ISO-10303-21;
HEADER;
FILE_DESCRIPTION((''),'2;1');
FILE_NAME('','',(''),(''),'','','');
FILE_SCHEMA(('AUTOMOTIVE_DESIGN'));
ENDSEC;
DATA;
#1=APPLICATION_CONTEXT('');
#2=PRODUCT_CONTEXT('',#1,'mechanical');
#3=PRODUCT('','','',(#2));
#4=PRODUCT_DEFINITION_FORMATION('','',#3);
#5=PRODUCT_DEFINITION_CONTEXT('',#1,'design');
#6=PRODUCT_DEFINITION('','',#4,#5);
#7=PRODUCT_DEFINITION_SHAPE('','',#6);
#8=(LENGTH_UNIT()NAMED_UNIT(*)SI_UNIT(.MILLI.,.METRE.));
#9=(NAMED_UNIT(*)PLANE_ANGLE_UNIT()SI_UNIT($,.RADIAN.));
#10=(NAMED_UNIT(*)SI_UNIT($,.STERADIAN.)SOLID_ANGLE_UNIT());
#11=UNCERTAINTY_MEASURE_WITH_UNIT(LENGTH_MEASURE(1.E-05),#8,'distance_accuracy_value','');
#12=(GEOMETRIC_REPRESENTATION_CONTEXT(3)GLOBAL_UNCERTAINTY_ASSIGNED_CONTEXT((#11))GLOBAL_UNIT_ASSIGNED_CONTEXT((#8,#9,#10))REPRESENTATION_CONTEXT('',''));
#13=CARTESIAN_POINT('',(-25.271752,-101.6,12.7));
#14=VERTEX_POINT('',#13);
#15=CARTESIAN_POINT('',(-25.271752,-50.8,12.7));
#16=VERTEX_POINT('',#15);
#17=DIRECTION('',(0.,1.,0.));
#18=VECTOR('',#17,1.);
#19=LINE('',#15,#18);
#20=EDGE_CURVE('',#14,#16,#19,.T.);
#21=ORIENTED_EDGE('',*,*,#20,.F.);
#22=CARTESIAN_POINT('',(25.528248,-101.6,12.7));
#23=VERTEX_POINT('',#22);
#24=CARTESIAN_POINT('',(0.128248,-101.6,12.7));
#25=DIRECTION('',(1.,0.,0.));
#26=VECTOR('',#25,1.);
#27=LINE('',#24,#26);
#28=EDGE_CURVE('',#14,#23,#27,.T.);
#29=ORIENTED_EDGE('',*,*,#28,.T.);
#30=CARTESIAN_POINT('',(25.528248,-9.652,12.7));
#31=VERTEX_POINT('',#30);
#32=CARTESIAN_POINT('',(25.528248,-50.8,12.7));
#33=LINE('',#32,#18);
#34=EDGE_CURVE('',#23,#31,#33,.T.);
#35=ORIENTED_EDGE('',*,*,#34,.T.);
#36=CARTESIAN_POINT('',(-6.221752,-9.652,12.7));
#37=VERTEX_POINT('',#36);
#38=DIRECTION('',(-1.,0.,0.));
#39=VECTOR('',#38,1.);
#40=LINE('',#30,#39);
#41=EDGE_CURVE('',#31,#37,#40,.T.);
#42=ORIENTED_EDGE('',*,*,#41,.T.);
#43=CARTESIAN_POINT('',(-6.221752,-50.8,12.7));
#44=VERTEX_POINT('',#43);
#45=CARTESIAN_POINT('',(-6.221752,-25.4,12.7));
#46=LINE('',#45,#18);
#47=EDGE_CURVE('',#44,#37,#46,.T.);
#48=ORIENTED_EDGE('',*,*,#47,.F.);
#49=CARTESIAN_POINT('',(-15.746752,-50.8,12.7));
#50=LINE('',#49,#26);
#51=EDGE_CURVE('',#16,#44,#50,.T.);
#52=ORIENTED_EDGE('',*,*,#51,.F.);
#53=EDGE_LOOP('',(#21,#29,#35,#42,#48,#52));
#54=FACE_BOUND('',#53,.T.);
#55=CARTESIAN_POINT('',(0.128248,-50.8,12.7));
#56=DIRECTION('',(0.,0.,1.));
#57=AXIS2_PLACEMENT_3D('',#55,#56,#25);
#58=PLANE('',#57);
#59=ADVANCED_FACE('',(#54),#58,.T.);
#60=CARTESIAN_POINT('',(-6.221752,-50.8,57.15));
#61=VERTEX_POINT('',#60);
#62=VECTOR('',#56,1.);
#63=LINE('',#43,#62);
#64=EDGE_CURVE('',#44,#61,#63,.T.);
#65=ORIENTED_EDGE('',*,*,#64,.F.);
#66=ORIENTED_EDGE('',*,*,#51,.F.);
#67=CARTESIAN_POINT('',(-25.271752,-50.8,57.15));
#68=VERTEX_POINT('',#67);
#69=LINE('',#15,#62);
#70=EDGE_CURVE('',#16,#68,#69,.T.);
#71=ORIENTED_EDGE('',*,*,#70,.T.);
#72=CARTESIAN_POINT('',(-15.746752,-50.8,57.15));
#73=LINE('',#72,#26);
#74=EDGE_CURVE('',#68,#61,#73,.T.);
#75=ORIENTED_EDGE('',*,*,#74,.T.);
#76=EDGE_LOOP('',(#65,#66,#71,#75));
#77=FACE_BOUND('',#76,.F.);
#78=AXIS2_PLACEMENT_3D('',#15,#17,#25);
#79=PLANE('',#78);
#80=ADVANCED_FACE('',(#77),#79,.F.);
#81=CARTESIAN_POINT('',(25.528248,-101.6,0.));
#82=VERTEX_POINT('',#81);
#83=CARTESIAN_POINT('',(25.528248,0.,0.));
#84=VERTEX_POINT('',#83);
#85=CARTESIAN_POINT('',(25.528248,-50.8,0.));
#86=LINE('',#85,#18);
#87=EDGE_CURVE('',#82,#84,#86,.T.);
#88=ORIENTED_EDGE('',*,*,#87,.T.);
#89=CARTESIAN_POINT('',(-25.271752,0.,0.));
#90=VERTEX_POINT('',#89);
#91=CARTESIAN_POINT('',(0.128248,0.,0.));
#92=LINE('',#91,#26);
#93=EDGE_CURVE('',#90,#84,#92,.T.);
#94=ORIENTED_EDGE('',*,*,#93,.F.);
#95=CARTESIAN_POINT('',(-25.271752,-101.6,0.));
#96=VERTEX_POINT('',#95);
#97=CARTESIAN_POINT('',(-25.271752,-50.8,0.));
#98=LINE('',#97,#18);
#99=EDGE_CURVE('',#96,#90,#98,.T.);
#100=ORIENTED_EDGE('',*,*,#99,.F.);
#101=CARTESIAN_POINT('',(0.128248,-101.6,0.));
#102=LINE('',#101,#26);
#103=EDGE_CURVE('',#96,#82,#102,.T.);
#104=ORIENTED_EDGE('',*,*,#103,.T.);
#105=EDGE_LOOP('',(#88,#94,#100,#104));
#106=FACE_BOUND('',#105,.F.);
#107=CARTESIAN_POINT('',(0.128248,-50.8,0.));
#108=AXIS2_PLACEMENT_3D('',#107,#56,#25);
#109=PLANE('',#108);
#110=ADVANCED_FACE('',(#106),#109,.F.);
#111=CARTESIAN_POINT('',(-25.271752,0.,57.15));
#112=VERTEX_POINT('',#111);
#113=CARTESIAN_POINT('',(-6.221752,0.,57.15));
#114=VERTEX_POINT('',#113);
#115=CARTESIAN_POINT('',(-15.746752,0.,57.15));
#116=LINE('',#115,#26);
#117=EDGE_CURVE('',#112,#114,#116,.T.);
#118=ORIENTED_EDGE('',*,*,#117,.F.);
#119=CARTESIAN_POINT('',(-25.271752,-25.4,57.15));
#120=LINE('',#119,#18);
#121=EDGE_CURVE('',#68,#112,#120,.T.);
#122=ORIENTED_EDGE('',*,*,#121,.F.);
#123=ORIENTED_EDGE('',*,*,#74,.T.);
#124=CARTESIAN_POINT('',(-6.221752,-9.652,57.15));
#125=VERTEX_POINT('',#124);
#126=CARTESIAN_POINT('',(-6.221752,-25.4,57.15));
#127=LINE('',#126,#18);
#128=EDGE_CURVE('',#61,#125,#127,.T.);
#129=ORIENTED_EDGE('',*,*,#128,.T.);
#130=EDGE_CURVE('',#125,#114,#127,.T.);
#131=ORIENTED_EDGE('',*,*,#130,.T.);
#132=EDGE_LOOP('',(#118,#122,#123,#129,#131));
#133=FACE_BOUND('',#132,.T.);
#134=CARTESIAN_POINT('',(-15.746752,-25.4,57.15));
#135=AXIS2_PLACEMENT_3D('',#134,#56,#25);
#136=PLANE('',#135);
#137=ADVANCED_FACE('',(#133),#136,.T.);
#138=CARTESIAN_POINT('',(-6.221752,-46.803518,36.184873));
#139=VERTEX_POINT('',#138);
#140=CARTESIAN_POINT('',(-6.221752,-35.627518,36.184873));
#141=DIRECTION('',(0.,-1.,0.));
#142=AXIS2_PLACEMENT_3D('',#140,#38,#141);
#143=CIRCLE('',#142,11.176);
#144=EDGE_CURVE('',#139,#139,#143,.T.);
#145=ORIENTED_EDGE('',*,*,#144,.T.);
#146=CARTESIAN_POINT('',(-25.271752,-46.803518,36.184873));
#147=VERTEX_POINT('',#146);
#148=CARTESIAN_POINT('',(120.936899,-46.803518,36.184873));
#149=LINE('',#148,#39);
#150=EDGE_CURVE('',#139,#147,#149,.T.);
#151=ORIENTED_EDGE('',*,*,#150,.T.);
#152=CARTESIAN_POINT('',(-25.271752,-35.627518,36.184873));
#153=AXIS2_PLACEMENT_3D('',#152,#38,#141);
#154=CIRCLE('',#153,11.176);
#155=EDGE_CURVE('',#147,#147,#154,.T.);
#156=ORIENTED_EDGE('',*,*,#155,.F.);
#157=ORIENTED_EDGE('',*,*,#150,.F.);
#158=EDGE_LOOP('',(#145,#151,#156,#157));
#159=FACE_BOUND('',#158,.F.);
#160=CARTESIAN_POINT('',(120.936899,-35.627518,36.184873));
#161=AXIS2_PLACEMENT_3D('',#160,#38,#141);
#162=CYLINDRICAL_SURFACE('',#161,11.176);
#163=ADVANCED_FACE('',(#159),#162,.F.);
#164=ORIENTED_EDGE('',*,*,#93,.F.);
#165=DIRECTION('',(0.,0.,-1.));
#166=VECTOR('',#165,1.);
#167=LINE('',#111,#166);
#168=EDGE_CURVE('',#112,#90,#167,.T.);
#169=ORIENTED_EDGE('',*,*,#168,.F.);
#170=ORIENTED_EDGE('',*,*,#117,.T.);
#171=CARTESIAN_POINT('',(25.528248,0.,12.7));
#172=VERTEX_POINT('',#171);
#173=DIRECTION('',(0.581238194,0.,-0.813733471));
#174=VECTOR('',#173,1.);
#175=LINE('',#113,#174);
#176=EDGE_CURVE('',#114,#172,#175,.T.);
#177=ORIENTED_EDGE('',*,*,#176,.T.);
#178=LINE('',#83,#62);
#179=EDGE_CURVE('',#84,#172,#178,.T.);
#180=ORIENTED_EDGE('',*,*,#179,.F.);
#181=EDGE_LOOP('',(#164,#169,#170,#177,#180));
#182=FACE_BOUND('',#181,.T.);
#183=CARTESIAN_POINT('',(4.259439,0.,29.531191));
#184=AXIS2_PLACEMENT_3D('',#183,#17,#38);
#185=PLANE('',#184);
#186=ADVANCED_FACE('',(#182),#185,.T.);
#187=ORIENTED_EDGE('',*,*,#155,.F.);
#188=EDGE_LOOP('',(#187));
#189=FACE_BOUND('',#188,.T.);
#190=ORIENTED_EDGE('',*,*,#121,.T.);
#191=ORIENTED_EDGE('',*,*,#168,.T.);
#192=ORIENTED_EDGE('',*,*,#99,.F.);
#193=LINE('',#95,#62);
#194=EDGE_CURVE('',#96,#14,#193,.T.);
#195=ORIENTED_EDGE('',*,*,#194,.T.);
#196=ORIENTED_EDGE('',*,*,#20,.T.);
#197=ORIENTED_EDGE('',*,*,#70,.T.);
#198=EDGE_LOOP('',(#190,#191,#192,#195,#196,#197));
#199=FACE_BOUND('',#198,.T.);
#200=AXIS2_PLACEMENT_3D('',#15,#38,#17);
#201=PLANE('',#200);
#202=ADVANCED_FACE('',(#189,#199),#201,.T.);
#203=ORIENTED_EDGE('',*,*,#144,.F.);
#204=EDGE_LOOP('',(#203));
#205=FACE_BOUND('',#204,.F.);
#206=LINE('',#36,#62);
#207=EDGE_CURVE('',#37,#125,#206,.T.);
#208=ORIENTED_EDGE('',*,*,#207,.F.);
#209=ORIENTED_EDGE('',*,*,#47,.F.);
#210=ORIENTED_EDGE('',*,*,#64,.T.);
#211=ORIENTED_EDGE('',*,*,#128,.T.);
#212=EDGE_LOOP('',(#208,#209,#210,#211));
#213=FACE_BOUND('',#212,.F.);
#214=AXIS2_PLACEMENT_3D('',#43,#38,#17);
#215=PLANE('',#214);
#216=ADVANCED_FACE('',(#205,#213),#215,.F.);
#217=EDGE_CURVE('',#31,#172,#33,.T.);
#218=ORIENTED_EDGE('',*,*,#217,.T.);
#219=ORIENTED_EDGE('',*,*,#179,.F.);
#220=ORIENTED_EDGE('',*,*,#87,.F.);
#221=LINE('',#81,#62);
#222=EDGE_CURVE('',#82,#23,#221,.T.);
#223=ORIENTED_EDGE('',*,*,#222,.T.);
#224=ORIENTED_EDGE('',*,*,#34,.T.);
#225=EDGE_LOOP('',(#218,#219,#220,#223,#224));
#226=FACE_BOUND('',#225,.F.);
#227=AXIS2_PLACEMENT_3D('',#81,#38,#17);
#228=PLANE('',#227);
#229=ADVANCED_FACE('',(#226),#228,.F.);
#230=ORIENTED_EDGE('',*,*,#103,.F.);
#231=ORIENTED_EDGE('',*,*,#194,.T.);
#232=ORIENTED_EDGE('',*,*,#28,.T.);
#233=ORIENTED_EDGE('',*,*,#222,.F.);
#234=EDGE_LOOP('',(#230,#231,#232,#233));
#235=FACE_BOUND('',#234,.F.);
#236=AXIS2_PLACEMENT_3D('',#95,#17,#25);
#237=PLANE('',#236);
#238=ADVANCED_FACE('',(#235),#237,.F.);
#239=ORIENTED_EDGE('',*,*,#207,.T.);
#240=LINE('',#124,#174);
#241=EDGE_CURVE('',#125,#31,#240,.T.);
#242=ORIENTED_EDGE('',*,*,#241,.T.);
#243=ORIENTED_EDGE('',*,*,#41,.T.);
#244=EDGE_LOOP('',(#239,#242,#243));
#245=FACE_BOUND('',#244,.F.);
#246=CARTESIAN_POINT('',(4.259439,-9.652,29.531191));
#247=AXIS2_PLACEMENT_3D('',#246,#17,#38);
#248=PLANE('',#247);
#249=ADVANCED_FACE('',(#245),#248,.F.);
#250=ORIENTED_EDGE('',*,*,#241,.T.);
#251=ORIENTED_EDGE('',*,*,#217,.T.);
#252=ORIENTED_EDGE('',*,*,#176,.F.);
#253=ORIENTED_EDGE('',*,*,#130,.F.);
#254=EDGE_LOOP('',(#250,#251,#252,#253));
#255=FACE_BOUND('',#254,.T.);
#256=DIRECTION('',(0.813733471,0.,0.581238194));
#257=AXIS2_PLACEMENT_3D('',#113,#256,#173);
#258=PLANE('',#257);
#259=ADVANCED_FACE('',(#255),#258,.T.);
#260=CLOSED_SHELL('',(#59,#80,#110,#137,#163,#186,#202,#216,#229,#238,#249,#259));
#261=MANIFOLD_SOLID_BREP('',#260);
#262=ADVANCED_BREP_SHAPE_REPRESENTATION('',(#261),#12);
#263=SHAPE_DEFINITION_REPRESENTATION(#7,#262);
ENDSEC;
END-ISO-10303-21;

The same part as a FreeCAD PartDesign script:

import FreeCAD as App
import Part
import Sketcher

V = App.Vector
Q = App.Units.Quantity

doc = App.newDocument("Part")
body = doc.addObject("PartDesign::Body", "Body")

sketch1 = body.newObject("Sketcher::SketchObject", "Sketch")
sketch1.AttachmentSupport = (doc.getObject("XY_Plane"), [""])
sketch1.MapMode = "FlatFace"
sketch1.addGeometry([
    Part.LineSegment(V(-25, 0, 0), V(-25, -102, 0)),
    Part.LineSegment(V(-25, -102, 0), V(26, -102, 0)),
    Part.LineSegment(V(26, -102, 0), V(26, 0, 0)),
    Part.LineSegment(V(26, 0, 0), V(-25, 0, 0)),
], False)
sketch1.addConstraint([
    Sketcher.Constraint("Coincident", 0, 2, 1, 1),
    Sketcher.Constraint("Coincident", 1, 2, 2, 1),
    Sketcher.Constraint("Coincident", 2, 2, 3, 1),
    Sketcher.Constraint("Coincident", 3, 2, 0, 1),
    Sketcher.Constraint("Vertical", 0),
    Sketcher.Constraint("Horizontal", 1),
    Sketcher.Constraint("Vertical", 2),
    Sketcher.Constraint("Horizontal", 3),
    Sketcher.Constraint("PointOnObject", 2, 2, -1),
    Sketcher.Constraint("DistanceX", 1, 1, 1, 2, Q("2 in")),
    Sketcher.Constraint("DistanceY", 0, 2, 0, 1, Q("4 in")),
    Sketcher.Constraint("DistanceX", 0, 2, -1, 1, Q("25.271752 mm")),
])
pad1 = body.newObject("PartDesign::Pad", "Pad")
pad1.Profile = sketch1
pad1.Length = Q("0.5 in")

sketch2 = body.newObject("Sketcher::SketchObject", "Sketch001")
sketch2.AttachmentSupport = (doc.getObject("XY_Plane"), [""])
sketch2.MapMode = "FlatFace"
sketch2.AttachmentOffset = App.Placement(V(0, 0, 0.5 * 25.4), App.Rotation())
sketch2.addGeometry([
    Part.LineSegment(V(-25, 0, 0), V(-25, -51, 0)),
    Part.LineSegment(V(-25, -51, 0), V(-6, -51, 0)),
    Part.LineSegment(V(-6, -51, 0), V(-6, 0, 0)),
    Part.LineSegment(V(-6, 0, 0), V(-25, 0, 0)),
], False)
sketch2.addConstraint([
    Sketcher.Constraint("Coincident", 0, 2, 1, 1),
    Sketcher.Constraint("Coincident", 1, 2, 2, 1),
    Sketcher.Constraint("Coincident", 2, 2, 3, 1),
    Sketcher.Constraint("Coincident", 3, 2, 0, 1),
    Sketcher.Constraint("Vertical", 0),
    Sketcher.Constraint("Horizontal", 1),
    Sketcher.Constraint("Vertical", 2),
    Sketcher.Constraint("Horizontal", 3),
    Sketcher.Constraint("PointOnObject", 2, 2, -1),
    Sketcher.Constraint("DistanceY", 0, 2, 0, 1, Q("2 in")),
    Sketcher.Constraint("DistanceX", 1, 1, 1, 2, Q("0.75 in")),
    Sketcher.Constraint("DistanceX", 0, 2, -1, 1, Q("25.271752 mm")),
])
pad2 = body.newObject("PartDesign::Pad", "Pad001")
pad2.Profile = sketch2
pad2.Length = Q("1.75 in")

sketch3 = body.newObject("Sketcher::SketchObject", "Sketch002")
sketch3.AttachmentSupport = (doc.getObject("XZ_Plane"), [""])
sketch3.MapMode = "FlatFace"
sketch3.addGeometry([
    Part.LineSegment(V(-6, 13, 0), V(-6, 57, 0)),
    Part.LineSegment(V(-6, 57, 0), V(26, 13, 0)),
    Part.LineSegment(V(26, 13, 0), V(-6, 13, 0)),
], False)
sketch3.addConstraint([
    Sketcher.Constraint("Coincident", 0, 2, 1, 1),
    Sketcher.Constraint("Coincident", 1, 2, 2, 1),
    Sketcher.Constraint("Coincident", 2, 2, 0, 1),
    Sketcher.Constraint("Vertical", 0),
    Sketcher.Constraint("Horizontal", 2),
    Sketcher.Constraint("DistanceX", 2, 2, 2, 1, Q("1.25 in")),
    Sketcher.Constraint("DistanceY", 0, 1, 0, 2, Q("1.75 in")),
    Sketcher.Constraint("DistanceY", -1, 1, 1, 2, Q("0.5 in")),
    Sketcher.Constraint("DistanceX", -1, 1, 1, 2, Q("25.528248 mm")),
])
pad3 = body.newObject("PartDesign::Pad", "Pad002")
pad3.Profile = sketch3
pad3.Length = Q("0.38 in")

sketch4 = body.newObject("Sketcher::SketchObject", "Sketch003")
sketch4.AttachmentSupport = (doc.getObject("YZ_Plane"), [""])
sketch4.MapMode = "FlatFace"
sketch4.AttachmentOffset = App.Placement(V(0, 0, -6.221752), App.Rotation())
sketch4.addGeometry(Part.Circle(V(-36, 36, 0), V(0, 0, 1), 11), False)
sketch4.addConstraint([
    Sketcher.Constraint("Diameter", 0, Q("0.88 in")),
    Sketcher.Constraint("DistanceX", 0, 3, -1, 1, Q("35.627518 mm")),
    Sketcher.Constraint("DistanceY", -1, 1, 0, 3, Q("36.184873 mm")),
])
doc.recompute()
hole = body.newObject("PartDesign::Hole", "Hole")
hole.Profile = sketch4
hole.ThreadType = "None"
hole.Diameter = Q("0.88 in")
hole.DepthType = "ThroughAll"

doc.recompute()
